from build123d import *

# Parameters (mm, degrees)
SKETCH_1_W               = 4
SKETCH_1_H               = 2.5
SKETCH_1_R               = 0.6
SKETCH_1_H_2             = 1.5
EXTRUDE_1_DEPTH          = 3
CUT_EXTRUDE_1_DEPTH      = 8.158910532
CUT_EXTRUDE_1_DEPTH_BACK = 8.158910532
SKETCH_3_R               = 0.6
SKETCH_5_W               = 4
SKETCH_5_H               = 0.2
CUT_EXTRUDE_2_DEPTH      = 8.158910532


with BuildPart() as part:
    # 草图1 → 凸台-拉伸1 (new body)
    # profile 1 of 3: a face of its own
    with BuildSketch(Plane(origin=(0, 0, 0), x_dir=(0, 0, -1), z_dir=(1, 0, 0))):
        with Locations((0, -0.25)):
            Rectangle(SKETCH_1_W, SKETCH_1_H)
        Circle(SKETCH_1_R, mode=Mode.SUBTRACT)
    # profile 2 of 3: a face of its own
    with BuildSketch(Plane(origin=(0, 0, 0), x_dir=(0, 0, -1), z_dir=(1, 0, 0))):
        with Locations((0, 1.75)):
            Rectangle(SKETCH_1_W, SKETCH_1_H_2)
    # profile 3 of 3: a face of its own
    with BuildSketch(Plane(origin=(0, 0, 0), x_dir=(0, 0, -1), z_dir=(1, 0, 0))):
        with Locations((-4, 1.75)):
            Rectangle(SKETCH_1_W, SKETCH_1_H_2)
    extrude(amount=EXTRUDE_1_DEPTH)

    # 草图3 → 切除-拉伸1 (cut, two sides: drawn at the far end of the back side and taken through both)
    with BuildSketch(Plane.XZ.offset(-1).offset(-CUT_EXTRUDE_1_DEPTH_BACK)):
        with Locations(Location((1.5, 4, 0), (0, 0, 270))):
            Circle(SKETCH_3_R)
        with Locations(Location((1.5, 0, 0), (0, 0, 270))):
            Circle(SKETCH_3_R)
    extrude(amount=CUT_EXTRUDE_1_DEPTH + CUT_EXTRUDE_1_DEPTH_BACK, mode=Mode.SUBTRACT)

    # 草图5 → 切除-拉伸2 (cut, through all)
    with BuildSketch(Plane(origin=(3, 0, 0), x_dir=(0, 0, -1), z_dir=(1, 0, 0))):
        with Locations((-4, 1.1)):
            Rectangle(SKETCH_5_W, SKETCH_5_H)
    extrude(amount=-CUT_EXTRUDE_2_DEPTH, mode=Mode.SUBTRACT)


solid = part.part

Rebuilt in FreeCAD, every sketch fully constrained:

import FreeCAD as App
import Part
import Sketcher
from FreeCAD import Vector
Q = App.Units.Quantity

doc = App.newDocument("Part")
body = doc.addObject("PartDesign::Body", "Body")

sketch1 = body.newObject("Sketcher::SketchObject", "Sketch")
sketch1.AttachmentSupport = (doc.getObject("YZ_Plane"), [""])
sketch1.MapMode = "FlatFace"
sketch1.addGeometry(Part.LineSegment(Vector(1, 2, 0), Vector(-1.5, 2, 0)), False)
sketch1.addGeometry(Part.LineSegment(Vector(-1.5, 2, 0), Vector(-1.5, -2, 0)), False)
sketch1.addGeometry(Part.LineSegment(Vector(-1.5, -2, 0), Vector(2.5, -2, 0)), False)
sketch1.addGeometry(Part.LineSegment(Vector(2.5, -2, 0), Vector(2.5, 6, 0)), False)
sketch1.addGeometry(Part.LineSegment(Vector(2.5, 6, 0), Vector(1, 6, 0)), False)
sketch1.addGeometry(Part.LineSegment(Vector(1, 6, 0), Vector(1, 2, 0)), False)
sketch1.addGeometry(Part.Circle(Vector(0, 0, 0), Vector(0, 0, 1), 0.6), False)
sketch1.addConstraint(Sketcher.Constraint("Coincident", 0, 2, 1, 1))
sketch1.addConstraint(Sketcher.Constraint("Coincident", 1, 2, 2, 1))
sketch1.addConstraint(Sketcher.Constraint("Coincident", 2, 2, 3, 1))
sketch1.addConstraint(Sketcher.Constraint("Coincident", 3, 2, 4, 1))
sketch1.addConstraint(Sketcher.Constraint("Coincident", 4, 2, 5, 1))
sketch1.addConstraint(Sketcher.Constraint("Coincident", 5, 2, 0, 1))
sketch1.addConstraint(Sketcher.Constraint("Horizontal", 0))
sketch1.addConstraint(Sketcher.Constraint("Vertical", 1))
sketch1.addConstraint(Sketcher.Constraint("Horizontal", 2))
sketch1.addConstraint(Sketcher.Constraint("Vertical", 3))
sketch1.addConstraint(Sketcher.Constraint("Horizontal", 4))
sketch1.addConstraint(Sketcher.Constraint("Vertical", 5))
sketch1.addConstraint(Sketcher.Constraint("Coincident", 6, 3, -1, 1))
sketch1.addConstraint(Sketcher.Constraint("Equal", 2, 1))
sketch1.addConstraint(Sketcher.Constraint("Equal", 1, 5))
sketch1.addConstraint(Sketcher.Constraint("Diameter", 6, Q("1.2 mm")))
sketch1.addConstraint(Sketcher.Constraint("DistanceX", 2, 1, 2, 2, Q("4 mm")))
sketch1.addConstraint(Sketcher.Constraint("DistanceX", 0, 2, 0, 1, Q("2.5 mm")))
sketch1.addConstraint(Sketcher.Constraint("DistanceY", -1, 1, 0, 2, Q("2 mm")))
sketch1.addConstraint(Sketcher.Constraint("DistanceX", -1, 1, 4, 2, Q("1 mm")))
pad1 = body.newObject("PartDesign::Pad", "Pad")
pad1.Profile = sketch1
pad1.Length = 3

sketch2 = body.newObject("Sketcher::SketchObject", "Sketch001")
sketch2.AttachmentSupport = (doc.getObject("XZ_Plane"), [""])
sketch2.MapMode = "FlatFace"
sketch2.AttachmentOffset = App.Placement(Vector(0, 0, -1), App.Rotation())
sketch2.addGeometry(Part.Circle(Vector(1.5, 4, 0), Vector(0, 0, 1), 0.6), False)
sketch2.addGeometry(Part.Circle(Vector(1.5, 0, 0), Vector(0, 0, 1), 0.6), False)
sketch2.addConstraint(Sketcher.Constraint("Equal", 0, 1))
sketch2.addConstraint(Sketcher.Constraint("PointOnObject", 1, 3, -1))
sketch2.addConstraint(Sketcher.Constraint("Vertical", 0, 3, 1, 3))
sketch2.addConstraint(Sketcher.Constraint("Diameter", 0, Q("1.2 mm")))
sketch2.addConstraint(Sketcher.Constraint("DistanceY", -1, 1, 0, 3, Q("4 mm")))
sketch2.addConstraint(Sketcher.Constraint("DistanceX", -1, 1, 0, 3, Q("1.5 mm")))
pocket1 = body.newObject("PartDesign::Pocket", "Pocket")
pocket1.Profile = sketch2
pocket1.Type = "ThroughAll"
pocket1.Midplane = True

sketch3 = body.newObject("Sketcher::SketchObject", "Sketch002")
sketch3.AttachmentSupport = (doc.getObject("YZ_Plane"), [""])
sketch3.MapMode = "FlatFace"
sketch3.AttachmentOffset = App.Placement(Vector(0, 0, 3), App.Rotation())
sketch3.addGeometry(Part.LineSegment(Vector(1.2, 6, 0), Vector(1, 6, 0)), False)
sketch3.addGeometry(Part.LineSegment(Vector(1, 6, 0), Vector(1, 2, 0)), False)
sketch3.addGeometry(Part.LineSegment(Vector(1, 2, 0), Vector(1.2, 2, 0)), False)
sketch3.addGeometry(Part.LineSegment(Vector(1.2, 2, 0), Vector(1.2, 6, 0)), False)
sketch3.addConstraint(Sketcher.Constraint("Coincident", 0, 2, 1, 1))
sketch3.addConstraint(Sketcher.Constraint("Coincident", 1, 2, 2, 1))
sketch3.addConstraint(Sketcher.Constraint("Coincident", 2, 2, 3, 1))
sketch3.addConstraint(Sketcher.Constraint("Coincident", 3, 2, 0, 1))
sketch3.addConstraint(Sketcher.Constraint("Horizontal", 0))
sketch3.addConstraint(Sketcher.Constraint("Vertical", 1))
sketch3.addConstraint(Sketcher.Constraint("Horizontal", 2))
sketch3.addConstraint(Sketcher.Constraint("Vertical", 3))
sketch3.addConstraint(Sketcher.Constraint("DistanceY", 1, 2, 1, 1, Q("4 mm")))
sketch3.addConstraint(Sketcher.Constraint("DistanceX", 0, 2, 0, 1, Q("0.2 mm")))
sketch3.addConstraint(Sketcher.Constraint("DistanceX", -1, 1, 0, 2, Q("1 mm")))
sketch3.addConstraint(Sketcher.Constraint("DistanceY", -1, 1, 0, 2, Q("6 mm")))
pocket2 = body.newObject("PartDesign::Pocket", "Pocket001")
pocket2.Profile = sketch3
pocket2.Type = "ThroughAll"

doc.recompute()
